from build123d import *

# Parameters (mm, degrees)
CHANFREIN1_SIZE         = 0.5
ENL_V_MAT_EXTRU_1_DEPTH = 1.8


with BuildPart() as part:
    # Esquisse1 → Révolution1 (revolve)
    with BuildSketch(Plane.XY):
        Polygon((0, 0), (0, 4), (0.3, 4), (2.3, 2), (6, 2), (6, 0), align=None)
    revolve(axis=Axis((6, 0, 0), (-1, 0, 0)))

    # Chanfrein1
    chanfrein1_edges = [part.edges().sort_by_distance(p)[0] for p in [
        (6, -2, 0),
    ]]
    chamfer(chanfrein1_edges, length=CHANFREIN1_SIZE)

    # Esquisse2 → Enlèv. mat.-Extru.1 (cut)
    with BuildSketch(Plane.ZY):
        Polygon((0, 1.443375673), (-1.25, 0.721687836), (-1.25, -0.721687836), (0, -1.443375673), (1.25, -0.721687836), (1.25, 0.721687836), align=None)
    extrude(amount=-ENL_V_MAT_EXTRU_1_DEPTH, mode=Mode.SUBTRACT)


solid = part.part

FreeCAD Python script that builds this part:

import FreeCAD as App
import Part
import Sketcher
Q = App.Units.Quantity


def edges_at(feature, points):
    """Names of the edges that pass closest to the given points."""
    edges = feature.Shape.Edges
    near = lambda p: min(range(len(edges)), key=lambda i: edges[i].distToShape(Part.Vertex(*p))[0])
    return sorted({f"Edge{near(p) + 1}" for p in points})

doc = App.newDocument("Part")
body = doc.addObject("PartDesign::Body", "Body")

# Sketch on XY plane
sketch1 = doc.addObject("Sketcher::SketchObject", "Sketch")
body.addObject(sketch1)
sketch1.AttachmentSupport = (doc.XY_Plane, [""])
sketch1.MapMode = "FlatFace"
sketch1.addGeometry([
    Part.LineSegment(App.Vector(0, 4, 0), App.Vector(0, 0, 0)),  # 0
    Part.LineSegment(App.Vector(0, 0, 0), App.Vector(6, 0, 0)),  # 1
    Part.LineSegment(App.Vector(6, 0, 0), App.Vector(6, 2, 0)),  # 2
    Part.LineSegment(App.Vector(6, 2, 0), App.Vector(2.3, 2, 0)),  # 3
    Part.LineSegment(App.Vector(2.3, 2, 0), App.Vector(0.3, 4, 0)),  # 4
    Part.LineSegment(App.Vector(0.3, 4, 0), App.Vector(0, 4, 0)),  # 5
], False)
sketch1.addConstraint([
    Sketcher.Constraint("Coincident", 0, 2, 1, 1),
    Sketcher.Constraint("Coincident", 1, 2, 2, 1),
    Sketcher.Constraint("Coincident", 2, 2, 3, 1),
    Sketcher.Constraint("Coincident", 3, 2, 4, 1),
    Sketcher.Constraint("Coincident", 4, 2, 5, 1),
    Sketcher.Constraint("Coincident", 5, 2, 0, 1),
    Sketcher.Constraint("Vertical", 0),
    Sketcher.Constraint("Horizontal", 1),
    Sketcher.Constraint("Vertical", 2),
    Sketcher.Constraint("Horizontal", 3),
    Sketcher.Constraint("Horizontal", 5),
    Sketcher.Constraint("Coincident", 0, 2, -1, 1),
    Sketcher.Constraint("DistanceX", 1, 1, 1, 2, 6.0),
    Sketcher.Constraint("DistanceY", 0, 2, 0, 1, 4.0),
    Sketcher.Constraint("DistanceY", 2, 1, 2, 2, 2.0),
    Sketcher.Constraint("Angle", 4, Q("135 deg")),
    Sketcher.Constraint("DistanceX", 3, 2, 3, 1, 3.7),
])
revolution = doc.addObject("PartDesign::Revolution", "Revolution")
body.addObject(revolution)
revolution.Profile = sketch1
revolution.ReferenceAxis = (sketch1, ["H_Axis"])
revolution.Angle = 360
doc.recompute()

chamfer = doc.addObject("PartDesign::Chamfer", "Chamfer")
body.addObject(chamfer)
chamfer.Base = (revolution, edges_at(revolution, [(6, -2, 0)]))
chamfer.Size = 0.5

# Sketch on YZ plane
sketch2 = doc.addObject("Sketcher::SketchObject", "Sketch001")
body.addObject(sketch2)
sketch2.AttachmentSupport = (doc.YZ_Plane, [""])
sketch2.MapMode = "FlatFace"
sketch2.addGeometry([
    Part.LineSegment(App.Vector(1.4, 0, 0), App.Vector(0.7, -1.2, 0)),  # 0
    Part.LineSegment(App.Vector(0.7, -1.2, 0), App.Vector(-0.7, -1.2, 0)),  # 1
    Part.LineSegment(App.Vector(-0.7, -1.2, 0), App.Vector(-1.4, 0, 0)),  # 2
    Part.LineSegment(App.Vector(-1.4, 0, 0), App.Vector(-0.7, 1.2, 0)),  # 3
    Part.LineSegment(App.Vector(-0.7, 1.2, 0), App.Vector(0.7, 1.2, 0)),  # 4
    Part.LineSegment(App.Vector(0.7, 1.2, 0), App.Vector(1.4, 0, 0)),  # 5
], False)
sketch2.addConstraint([
    Sketcher.Constraint("Coincident", 0, 2, 1, 1),
    Sketcher.Constraint("Coincident", 1, 2, 2, 1),
    Sketcher.Constraint("Coincident", 2, 2, 3, 1),
    Sketcher.Constraint("Coincident", 3, 2, 4, 1),
    Sketcher.Constraint("Coincident", 4, 2, 5, 1),
    Sketcher.Constraint("Coincident", 5, 2, 0, 1),
    Sketcher.Constraint("Horizontal", 1),
    Sketcher.Constraint("Horizontal", 4),
    Sketcher.Constraint("Symmetric", 0, 2, 3, 2, -1, 1),
    Sketcher.Constraint("Symmetric", 2, 2, 5, 2, -1, 1),
    Sketcher.Constraint("PointOnObject", 2, 2, -1),
    Sketcher.Constraint("Parallel", 2, 5),
    Sketcher.Constraint("Vertical", 1, 2, 3, 2),
    Sketcher.Constraint("Angle", 0, Q("-120 deg")),
    Sketcher.Constraint("DistanceY", 1, 2, 3, 2, 2.5),
    Sketcher.Constraint("DistanceX", 1, 2, 1, 1, 1.443376),
])
pocket1 = doc.addObject("PartDesign::Pocket", "Pocket")
body.addObject(pocket1)
pocket1.Profile = sketch2
pocket1.Length = 1.8
pocket1.Reversed = True

doc.recompute()
